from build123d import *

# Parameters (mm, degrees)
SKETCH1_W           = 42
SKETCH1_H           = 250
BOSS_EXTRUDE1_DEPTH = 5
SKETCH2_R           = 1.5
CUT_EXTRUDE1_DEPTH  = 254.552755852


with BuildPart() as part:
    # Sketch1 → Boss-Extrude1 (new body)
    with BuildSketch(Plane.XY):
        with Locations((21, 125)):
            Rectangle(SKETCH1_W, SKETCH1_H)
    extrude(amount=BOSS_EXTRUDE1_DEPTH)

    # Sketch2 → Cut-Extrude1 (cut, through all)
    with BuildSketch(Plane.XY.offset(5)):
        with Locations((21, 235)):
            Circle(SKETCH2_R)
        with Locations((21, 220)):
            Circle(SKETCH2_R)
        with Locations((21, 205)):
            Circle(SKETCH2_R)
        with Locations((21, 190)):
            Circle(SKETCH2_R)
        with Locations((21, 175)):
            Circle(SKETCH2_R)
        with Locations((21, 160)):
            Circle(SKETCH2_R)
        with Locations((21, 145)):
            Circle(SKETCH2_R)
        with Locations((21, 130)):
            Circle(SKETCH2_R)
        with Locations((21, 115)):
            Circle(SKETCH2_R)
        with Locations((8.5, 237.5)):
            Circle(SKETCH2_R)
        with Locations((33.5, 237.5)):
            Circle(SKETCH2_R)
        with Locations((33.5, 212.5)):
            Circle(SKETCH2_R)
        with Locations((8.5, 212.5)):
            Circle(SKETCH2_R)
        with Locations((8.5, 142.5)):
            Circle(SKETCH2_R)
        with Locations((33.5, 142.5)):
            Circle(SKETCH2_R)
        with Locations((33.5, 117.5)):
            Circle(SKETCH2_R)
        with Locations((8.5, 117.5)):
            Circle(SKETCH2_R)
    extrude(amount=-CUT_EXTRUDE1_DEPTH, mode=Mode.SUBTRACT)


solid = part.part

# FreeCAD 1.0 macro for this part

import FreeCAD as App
import Part
import Sketcher
Q = App.Units.Quantity


def add_polygon(sketch, points):
    """Adds a closed chain of lines whose ends are joined by coincident constraints."""
    first, n = sketch.GeometryCount, len(points)
    for a, b in zip(points, points[1:] + points[:1]):
        sketch.addGeometry(Part.LineSegment(App.Vector(*a, 0), App.Vector(*b, 0)), False)
    for i in range(n):
        sketch.addConstraint(Sketcher.Constraint("Coincident", first + i, 2, first + (i + 1) % n, 1))

doc = App.newDocument("Part")
body = doc.addObject("PartDesign::Body", "Body")

sketch1 = body.newObject("Sketcher::SketchObject", "Sketch")
sketch1.AttachmentSupport = (doc.getObject("XY_Plane"), [""])
sketch1.MapMode = "FlatFace"
add_polygon(sketch1, [(0, 250), (0, 0), (42, 0), (42, 250)])
sketch1.addConstraint(Sketcher.Constraint("Vertical", 0))
sketch1.addConstraint(Sketcher.Constraint("Horizontal", 1))
sketch1.addConstraint(Sketcher.Constraint("Vertical", 2))
sketch1.addConstraint(Sketcher.Constraint("Horizontal", 3))
sketch1.addConstraint(Sketcher.Constraint("Coincident", 0, 2, -1, 1))
sketch1.addConstraint(Sketcher.Constraint("DistanceX", 1, 1, 1, 2, Q("42 mm")))
sketch1.addConstraint(Sketcher.Constraint("DistanceY", 0, 2, 0, 1, Q("250 mm")))
pad1 = body.newObject("PartDesign::Pad", "Pad")
pad1.Profile = sketch1
pad1.Length = 5

sketch2 = body.newObject("Sketcher::SketchObject", "Sketch001")
sketch2.AttachmentSupport = (doc.getObject("XY_Plane"), [""])
sketch2.MapMode = "FlatFace"
sketch2.AttachmentOffset = App.Placement(App.Vector(0, 0, 5), App.Rotation())
sketch2.addGeometry(Part.Circle(App.Vector(21, 235, 0), App.Vector(0, 0, 1), 1.5), False)
sketch2.addGeometry(Part.Circle(App.Vector(21, 220, 0), App.Vector(0, 0, 1), 1.5), False)
sketch2.addGeometry(Part.Circle(App.Vector(21, 205, 0), App.Vector(0, 0, 1), 1.5), False)
sketch2.addGeometry(Part.Circle(App.Vector(21, 190, 0), App.Vector(0, 0, 1), 1.5), False)
sketch2.addGeometry(Part.Circle(App.Vector(21, 175, 0), App.Vector(0, 0, 1), 1.5), False)
sketch2.addGeometry(Part.Circle(App.Vector(21, 160, 0), App.Vector(0, 0, 1), 1.5), False)
sketch2.addGeometry(Part.Circle(App.Vector(21, 145, 0), App.Vector(0, 0, 1), 1.5), False)
sketch2.addGeometry(Part.Circle(App.Vector(21, 130, 0), App.Vector(0, 0, 1), 1.5), False)
sketch2.addGeometry(Part.Circle(App.Vector(21, 115, 0), App.Vector(0, 0, 1), 1.5), False)
sketch2.addGeometry(Part.Circle(App.Vector(8.5, 237.5, 0), App.Vector(0, 0, 1), 1.5), False)
sketch2.addGeometry(Part.Circle(App.Vector(33.5, 237.5, 0), App.Vector(0, 0, 1), 1.5), False)
sketch2.addGeometry(Part.Circle(App.Vector(33.5, 212.5, 0), App.Vector(0, 0, 1), 1.5), False)
sketch2.addGeometry(Part.Circle(App.Vector(8.5, 212.5, 0), App.Vector(0, 0, 1), 1.5), False)
sketch2.addGeometry(Part.Circle(App.Vector(8.5, 142.5, 0), App.Vector(0, 0, 1), 1.5), False)
sketch2.addGeometry(Part.Circle(App.Vector(33.5, 142.5, 0), App.Vector(0, 0, 1), 1.5), False)
sketch2.addGeometry(Part.Circle(App.Vector(33.5, 117.5, 0), App.Vector(0, 0, 1), 1.5), False)
sketch2.addGeometry(Part.Circle(App.Vector(8.5, 117.5, 0), App.Vector(0, 0, 1), 1.5), False)
sketch2.addConstraint(Sketcher.Constraint("Equal", 0, 1))
sketch2.addConstraint(Sketcher.Constraint("Equal", 1, 2))
sketch2.addConstraint(Sketcher.Constraint("Equal", 2, 3))
sketch2.addConstraint(Sketcher.Constraint("Equal", 3, 4))
sketch2.addConstraint(Sketcher.Constraint("Equal", 4, 5))
sketch2.addConstraint(Sketcher.Constraint("Equal", 5, 6))
sketch2.addConstraint(Sketcher.Constraint("Equal", 6, 7))
sketch2.addConstraint(Sketcher.Constraint("Equal", 7, 8))
sketch2.addConstraint(Sketcher.Constraint("Equal", 8, 9))
sketch2.addConstraint(Sketcher.Constraint("Equal", 9, 10))
sketch2.addConstraint(Sketcher.Constraint("Equal", 10, 11))
sketch2.addConstraint(Sketcher.Constraint("Equal", 11, 12))
sketch2.addConstraint(Sketcher.Constraint("Equal", 12, 13))
sketch2.addConstraint(Sketcher.Constraint("Equal", 13, 14))
sketch2.addConstraint(Sketcher.Constraint("Equal", 14, 15))
sketch2.addConstraint(Sketcher.Constraint("Equal", 15, 16))
sketch2.addConstraint(Sketcher.Constraint("Horizontal", 9, 3, 10, 3))
sketch2.addConstraint(Sketcher.Constraint("Horizontal", 11, 3, 12, 3))
sketch2.addConstraint(Sketcher.Constraint("Horizontal", 13, 3, 14, 3))
sketch2.addConstraint(Sketcher.Constraint("Horizontal", 15, 3, 16, 3))
sketch2.addConstraint(Sketcher.Constraint("Vertical", 0, 3, 1, 3))
sketch2.addConstraint(Sketcher.Constraint("Vertical", 1, 3, 2, 3))
sketch2.addConstraint(Sketcher.Constraint("Vertical", 2, 3, 3, 3))
sketch2.addConstraint(Sketcher.Constraint("Vertical", 3, 3, 4, 3))
sketch2.addConstraint(Sketcher.Constraint("Vertical", 4, 3, 5, 3))
sketch2.addConstraint(Sketcher.Constraint("Vertical", 5, 3, 6, 3))
sketch2.addConstraint(Sketcher.Constraint("Vertical", 6, 3, 7, 3))
sketch2.addConstraint(Sketcher.Constraint("Vertical", 7, 3, 8, 3))
sketch2.addConstraint(Sketcher.Constraint("Vertical", 10, 3, 11, 3))
sketch2.addConstraint(Sketcher.Constraint("Vertical", 9, 3, 12, 3))
sketch2.addConstraint(Sketcher.Constraint("Vertical", 12, 3, 13, 3))
sketch2.addConstraint(Sketcher.Constraint("Vertical", 11, 3, 14, 3))
sketch2.addConstraint(Sketcher.Constraint("Vertical", 14, 3, 15, 3))
sketch2.addConstraint(Sketcher.Constraint("Vertical", 13, 3, 16, 3))
sketch2.addConstraint(Sketcher.Constraint("Diameter", 0, Q("3 mm")))
sketch2.addConstraint(Sketcher.Constraint("DistanceX", -1, 1, 0, 3, Q("21 mm")))
sketch2.addConstraint(Sketcher.Constraint("DistanceY", -1, 1, 0, 3, Q("235 mm")))
sketch2.addConstraint(Sketcher.Constraint("DistanceY", -1, 1, 1, 3, Q("220 mm")))
sketch2.addConstraint(Sketcher.Constraint("DistanceY", -1, 1, 2, 3, Q("205 mm")))
sketch2.addConstraint(Sketcher.Constraint("DistanceY", -1, 1, 3, 3, Q("190 mm")))
sketch2.addConstraint(Sketcher.Constraint("DistanceY", -1, 1, 4, 3, Q("175 mm")))
sketch2.addConstraint(Sketcher.Constraint("DistanceY", -1, 1, 5, 3, Q("160 mm")))
sketch2.addConstraint(Sketcher.Constraint("DistanceY", -1, 1, 6, 3, Q("145 mm")))
sketch2.addConstraint(Sketcher.Constraint("DistanceY", -1, 1, 7, 3, Q("130 mm")))
sketch2.addConstraint(Sketcher.Constraint("DistanceY", -1, 1, 8, 3, Q("115 mm")))
sketch2.addConstraint(Sketcher.Constraint("DistanceX", 9, 3, 10, 3, Q("25 mm")))
sketch2.addConstraint(Sketcher.Constraint("DistanceY", 11, 3, 10, 3, Q("25 mm")))
sketch2.addConstraint(Sketcher.Constraint("DistanceY", 15, 3, 14, 3, Q("25 mm")))
sketch2.addConstraint(Sketcher.Constraint("DistanceX", -1, 1, 9, 3, Q("8.5 mm")))
sketch2.addConstraint(Sketcher.Constraint("DistanceY", -1, 1, 9, 3, Q("237.5 mm")))
sketch2.addConstraint(Sketcher.Constraint("DistanceY", -1, 1, 13, 3, Q("142.5 mm")))
pocket1 = body.newObject("PartDesign::Pocket", "Pocket")
pocket1.Profile = sketch2
pocket1.Type = "ThroughAll"

doc.recompute()
